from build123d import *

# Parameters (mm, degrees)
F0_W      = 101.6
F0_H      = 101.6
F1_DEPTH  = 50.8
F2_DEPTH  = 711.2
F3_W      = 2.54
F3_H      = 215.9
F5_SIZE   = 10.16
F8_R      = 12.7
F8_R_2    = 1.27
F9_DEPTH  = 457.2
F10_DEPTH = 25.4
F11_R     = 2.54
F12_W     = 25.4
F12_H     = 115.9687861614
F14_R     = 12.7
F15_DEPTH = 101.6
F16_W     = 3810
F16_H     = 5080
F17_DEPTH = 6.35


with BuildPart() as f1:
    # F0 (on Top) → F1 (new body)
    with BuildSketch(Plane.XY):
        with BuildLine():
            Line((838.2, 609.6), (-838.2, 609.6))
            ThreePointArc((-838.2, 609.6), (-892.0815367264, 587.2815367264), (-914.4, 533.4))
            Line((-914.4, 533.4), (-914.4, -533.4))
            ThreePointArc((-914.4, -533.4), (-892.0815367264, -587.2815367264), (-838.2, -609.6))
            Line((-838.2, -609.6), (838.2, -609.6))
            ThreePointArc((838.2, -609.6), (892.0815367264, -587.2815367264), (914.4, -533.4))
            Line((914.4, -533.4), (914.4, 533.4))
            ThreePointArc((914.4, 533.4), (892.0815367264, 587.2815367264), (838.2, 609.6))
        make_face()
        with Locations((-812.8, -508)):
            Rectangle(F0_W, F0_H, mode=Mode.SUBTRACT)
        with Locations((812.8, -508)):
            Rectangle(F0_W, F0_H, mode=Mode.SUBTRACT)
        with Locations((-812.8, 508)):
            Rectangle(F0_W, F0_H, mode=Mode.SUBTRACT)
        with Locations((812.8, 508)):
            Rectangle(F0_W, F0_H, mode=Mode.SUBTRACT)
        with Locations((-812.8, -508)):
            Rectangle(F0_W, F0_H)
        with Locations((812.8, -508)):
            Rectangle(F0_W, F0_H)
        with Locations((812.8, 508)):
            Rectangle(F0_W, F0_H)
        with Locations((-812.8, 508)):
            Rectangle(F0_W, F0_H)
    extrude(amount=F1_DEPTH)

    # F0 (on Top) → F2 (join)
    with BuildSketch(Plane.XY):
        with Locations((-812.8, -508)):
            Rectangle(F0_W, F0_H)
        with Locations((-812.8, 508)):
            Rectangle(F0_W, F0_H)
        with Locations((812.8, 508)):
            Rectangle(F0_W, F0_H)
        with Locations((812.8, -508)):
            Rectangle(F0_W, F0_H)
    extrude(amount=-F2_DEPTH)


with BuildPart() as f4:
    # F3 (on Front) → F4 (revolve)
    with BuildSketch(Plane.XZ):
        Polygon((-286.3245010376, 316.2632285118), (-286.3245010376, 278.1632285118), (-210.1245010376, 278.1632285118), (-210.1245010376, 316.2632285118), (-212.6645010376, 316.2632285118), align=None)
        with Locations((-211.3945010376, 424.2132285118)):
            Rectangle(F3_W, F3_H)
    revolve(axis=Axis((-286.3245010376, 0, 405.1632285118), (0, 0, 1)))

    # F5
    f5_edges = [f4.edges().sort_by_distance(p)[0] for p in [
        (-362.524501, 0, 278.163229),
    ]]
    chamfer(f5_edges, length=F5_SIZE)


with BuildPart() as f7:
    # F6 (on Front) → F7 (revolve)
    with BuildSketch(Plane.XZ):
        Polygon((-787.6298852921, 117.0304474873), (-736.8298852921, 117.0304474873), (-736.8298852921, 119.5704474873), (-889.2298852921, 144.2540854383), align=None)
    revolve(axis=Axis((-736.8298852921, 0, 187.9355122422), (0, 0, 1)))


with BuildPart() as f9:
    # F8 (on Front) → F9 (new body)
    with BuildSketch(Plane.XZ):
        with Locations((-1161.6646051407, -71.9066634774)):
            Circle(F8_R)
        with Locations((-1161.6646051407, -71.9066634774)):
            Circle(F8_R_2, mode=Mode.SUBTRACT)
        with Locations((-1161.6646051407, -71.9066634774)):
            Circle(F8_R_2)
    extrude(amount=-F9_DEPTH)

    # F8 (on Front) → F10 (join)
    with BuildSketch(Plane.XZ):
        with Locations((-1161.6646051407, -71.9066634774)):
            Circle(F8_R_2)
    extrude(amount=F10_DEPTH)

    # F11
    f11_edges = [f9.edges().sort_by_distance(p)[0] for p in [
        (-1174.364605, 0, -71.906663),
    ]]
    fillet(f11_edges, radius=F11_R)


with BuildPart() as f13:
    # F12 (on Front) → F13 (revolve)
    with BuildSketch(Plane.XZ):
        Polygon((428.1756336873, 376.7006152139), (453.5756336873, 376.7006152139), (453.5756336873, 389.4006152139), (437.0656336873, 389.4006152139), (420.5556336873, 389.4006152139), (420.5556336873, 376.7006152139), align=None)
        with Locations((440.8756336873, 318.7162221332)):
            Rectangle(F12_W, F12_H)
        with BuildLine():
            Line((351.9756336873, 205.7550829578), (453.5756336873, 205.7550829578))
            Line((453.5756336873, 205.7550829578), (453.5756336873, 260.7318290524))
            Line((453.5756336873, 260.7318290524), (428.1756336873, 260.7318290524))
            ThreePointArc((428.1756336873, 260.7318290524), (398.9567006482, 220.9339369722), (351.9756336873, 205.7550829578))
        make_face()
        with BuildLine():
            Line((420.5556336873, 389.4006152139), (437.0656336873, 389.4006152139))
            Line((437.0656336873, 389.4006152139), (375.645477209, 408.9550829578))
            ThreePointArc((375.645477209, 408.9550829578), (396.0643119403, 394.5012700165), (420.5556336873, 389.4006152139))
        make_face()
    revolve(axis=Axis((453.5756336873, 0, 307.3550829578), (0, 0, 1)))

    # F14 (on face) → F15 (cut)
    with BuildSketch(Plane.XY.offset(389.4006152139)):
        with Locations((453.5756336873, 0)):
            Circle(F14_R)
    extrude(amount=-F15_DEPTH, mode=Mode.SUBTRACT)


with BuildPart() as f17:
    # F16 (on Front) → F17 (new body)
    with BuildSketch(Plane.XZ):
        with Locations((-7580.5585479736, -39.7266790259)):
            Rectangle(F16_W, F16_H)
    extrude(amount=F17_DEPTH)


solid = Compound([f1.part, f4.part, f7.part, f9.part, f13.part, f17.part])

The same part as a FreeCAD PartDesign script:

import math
import FreeCAD as App
import Part
import Sketcher

V = App.Vector
Q = App.Units.Quantity


def edges_at(feature, points):
    """Names of the edges that pass closest to the given points."""
    edges = feature.Shape.Edges
    near = lambda p: min(range(len(edges)), key=lambda i: edges[i].distToShape(Part.Vertex(*p))[0])
    return sorted({f"Edge{near(p) + 1}" for p in points})


def add_polygon(sketch, points):
    """Adds a closed chain of lines whose ends are joined by coincident constraints."""
    first, n = sketch.GeometryCount, len(points)
    for a, b in zip(points, points[1:] + points[:1]):
        sketch.addGeometry(Part.LineSegment(App.Vector(*a, 0), App.Vector(*b, 0)), False)
    for i in range(n):
        sketch.addConstraint(Sketcher.Constraint("Coincident", first + i, 2, first + (i + 1) % n, 1))

doc = App.newDocument("Part")
body = doc.addObject("PartDesign::Body", "Body")

# Sketch on XY plane
sketch1 = body.newObject("Sketcher::SketchObject", "Sketch")
sketch1.AttachmentSupport = (doc.getObject("XY_Plane"), [""])
sketch1.MapMode = "FlatFace"
sketch1.addGeometry(Part.LineSegment(V(838, 610, 0), V(-838, 610, 0)), False)
sketch1.addGeometry(Part.ArcOfCircle(Part.Circle(V(-838, 533, 0), V(0, 0, 1), 76), math.radians(90), math.radians(180)), False)
sketch1.addGeometry(Part.LineSegment(V(-914, 533, 0), V(-914, -533, 0)), False)
sketch1.addGeometry(Part.ArcOfCircle(Part.Circle(V(-838, -533, 0), V(0, 0, 1), 76), math.radians(180), math.radians(270)), False)
sketch1.addGeometry(Part.LineSegment(V(-838, -610, 0), V(838, -610, 0)), False)
sketch1.addGeometry(Part.ArcOfCircle(Part.Circle(V(838, -533, 0), V(0, 0, 1), 76), math.radians(-90), math.radians(0)), False)
sketch1.addGeometry(Part.LineSegment(V(914, -533, 0), V(914, 533, 0)), False)
sketch1.addGeometry(Part.ArcOfCircle(Part.Circle(V(838, 533, 0), V(0, 0, 1), 76), math.radians(0), math.radians(90)), False)
sketch1.addConstraint(Sketcher.Constraint("Tangent", 0, 2, 1, 1))
sketch1.addConstraint(Sketcher.Constraint("Tangent", 1, 2, 2, 1))
sketch1.addConstraint(Sketcher.Constraint("Tangent", 2, 2, 3, 1))
sketch1.addConstraint(Sketcher.Constraint("Tangent", 3, 2, 4, 1))
sketch1.addConstraint(Sketcher.Constraint("Tangent", 4, 2, 5, 1))
sketch1.addConstraint(Sketcher.Constraint("Tangent", 5, 2, 6, 1))
sketch1.addConstraint(Sketcher.Constraint("Tangent", 6, 2, 7, 1))
sketch1.addConstraint(Sketcher.Constraint("Tangent", 7, 2, 0, 1))
sketch1.addConstraint(Sketcher.Constraint("Horizontal", 0))
sketch1.addConstraint(Sketcher.Constraint("Vertical", 2))
sketch1.addConstraint(Sketcher.Constraint("Horizontal", 4))
sketch1.addConstraint(Sketcher.Constraint("Vertical", 6))
sketch1.addConstraint(Sketcher.Constraint("Equal", 1, 3))
sketch1.addConstraint(Sketcher.Constraint("Equal", 3, 5))
sketch1.addConstraint(Sketcher.Constraint("Equal", 5, 7))
sketch1.addConstraint(Sketcher.Constraint("Symmetric", 1, 3, 5, 3, -1, 1))
sketch1.addConstraint(Sketcher.Constraint("Radius", 1, Q("3 in")))
sketch1.addConstraint(Sketcher.Constraint("DistanceX", 0, 2, 0, 1, Q("66 in")))
sketch1.addConstraint(Sketcher.Constraint("DistanceY", 2, 2, 2, 1, Q("42 in")))
pad1 = body.newObject("PartDesign::Pad", "Pad")
pad1.Profile = sketch1
pad1.Length = Q("2 in")

# Sketch on XY plane
sketch2 = body.newObject("Sketcher::SketchObject", "Sketch001")
sketch2.AttachmentSupport = (doc.getObject("XY_Plane"), [""])
sketch2.MapMode = "FlatFace"
add_polygon(sketch2, [(-864, -457), (-864, -559), (-762, -559), (-762, -457)])  # lines 0-3
add_polygon(sketch2, [(-864, 559), (-864, 457), (-762, 457), (-762, 559)])  # lines 4-7
add_polygon(sketch2, [(762, 559), (762, 457), (864, 457), (864, 559)])  # lines 8-11
add_polygon(sketch2, [(762, -457), (762, -559), (864, -559), (864, -457)])  # lines 12-15
sketch2.addConstraint(Sketcher.Constraint("Vertical", 0))
sketch2.addConstraint(Sketcher.Constraint("Horizontal", 1))
sketch2.addConstraint(Sketcher.Constraint("Vertical", 2))
sketch2.addConstraint(Sketcher.Constraint("Horizontal", 3))
sketch2.addConstraint(Sketcher.Constraint("Vertical", 4))
sketch2.addConstraint(Sketcher.Constraint("Horizontal", 5))
sketch2.addConstraint(Sketcher.Constraint("Vertical", 6))
sketch2.addConstraint(Sketcher.Constraint("Horizontal", 7))
sketch2.addConstraint(Sketcher.Constraint("Vertical", 8))
sketch2.addConstraint(Sketcher.Constraint("Horizontal", 9))
sketch2.addConstraint(Sketcher.Constraint("Vertical", 10))
sketch2.addConstraint(Sketcher.Constraint("Horizontal", 11))
sketch2.addConstraint(Sketcher.Constraint("Vertical", 12))
sketch2.addConstraint(Sketcher.Constraint("Horizontal", 13))
sketch2.addConstraint(Sketcher.Constraint("Vertical", 14))
sketch2.addConstraint(Sketcher.Constraint("Horizontal", 15))
sketch2.addConstraint(Sketcher.Constraint("Symmetric", 2, 2, 8, 2, -1, 1))
sketch2.addConstraint(Sketcher.Constraint("Symmetric", 0, 2, 10, 2, -1, 1))
sketch2.addConstraint(Sketcher.Constraint("Symmetric", 6, 2, 12, 2, -1, 1))
sketch2.addConstraint(Sketcher.Constraint("Symmetric", 4, 2, 14, 2, -1, 1))
sketch2.addConstraint(Sketcher.Constraint("Symmetric", 5, 2, 8, 2, -2))
sketch2.addConstraint(Sketcher.Constraint("Symmetric", 7, 2, 10, 2, -2))
sketch2.addConstraint(Sketcher.Constraint("Equal", 15, 0))
sketch2.addConstraint(Sketcher.Constraint("DistanceX", 1, 1, 1, 2, Q("4 in")))
sketch2.addConstraint(Sketcher.Constraint("DistanceX", 0, 2, -1, 1, Q("34 in")))
sketch2.addConstraint(Sketcher.Constraint("DistanceY", 0, 2, -1, 1, Q("22 in")))
pad2 = body.newObject("PartDesign::Pad", "Pad001")
pad2.Profile = sketch2
pad2.Length = Q("28 in")
pad2.Reversed = True
body2 = doc.addObject("PartDesign::Body", "Body001")

# Sketch on XZ plane
sketch3 = body2.newObject("Sketcher::SketchObject", "Sketch002")
sketch3.AttachmentSupport = (doc.getObject("XZ_Plane001"), [""])
sketch3.MapMode = "FlatFace"
add_polygon(sketch3, [(-286.3, 316.3), (-286.3, 278.2), (-210.1, 278.2), (-210.1, 532.2), (-212.7, 532.2), (-212.7, 316.3)])  # lines 0-5
sketch3.addGeometry(Part.LineSegment(V(-286.3, 278.2, 0), V(-286.3, 532.2, 0)), True)  # axis
sketch3.addConstraint(Sketcher.Constraint("Vertical", 0))
sketch3.addConstraint(Sketcher.Constraint("Horizontal", 1))
sketch3.addConstraint(Sketcher.Constraint("Vertical", 2))
sketch3.addConstraint(Sketcher.Constraint("Horizontal", 3))
sketch3.addConstraint(Sketcher.Constraint("Vertical", 4))
sketch3.addConstraint(Sketcher.Constraint("Horizontal", 5))
sketch3.addConstraint(Sketcher.Constraint("Vertical", 6))
sketch3.addConstraint(Sketcher.Constraint("Coincident", 6, 1, 0, 2))
sketch3.addConstraint(Sketcher.Constraint("Horizontal", 3, 2, 6, 2))
sketch3.addConstraint(Sketcher.Constraint("DistanceX", 1, 1, 1, 2, Q("3 in")))
sketch3.addConstraint(Sketcher.Constraint("DistanceY", 2, 1, 2, 2, Q("10 in")))
sketch3.addConstraint(Sketcher.Constraint("DistanceX", 3, 2, 3, 1, Q("0.1 in")))
sketch3.addConstraint(Sketcher.Constraint("DistanceY", 0, 2, 0, 1, Q("1.5 in")))
sketch3.addConstraint(Sketcher.Constraint("DistanceX", 0, 2, -1, 1, Q("286.324501 mm")))
sketch3.addConstraint(Sketcher.Constraint("DistanceY", -1, 1, 0, 2, Q("278.163229 mm")))
revolution = body2.newObject("PartDesign::Revolution", "Revolution")
revolution.Profile = sketch3
revolution.ReferenceAxis = (sketch3, ["Axis0"])
revolution.Angle = 360
doc.recompute()

chamfer = body2.newObject("PartDesign::Chamfer", "Chamfer")
chamfer.Base = (revolution, edges_at(revolution, [(-362.525, 0, 278.163)]))
chamfer.Size = Q("0.4 in")
body3 = doc.addObject("PartDesign::Body", "Body002")

# Sketch on XZ plane
sketch4 = body3.newObject("Sketcher::SketchObject", "Sketch003")
sketch4.AttachmentSupport = (doc.getObject("XZ_Plane002"), [""])
sketch4.MapMode = "FlatFace"
add_polygon(sketch4, [(-787.6, 117), (-736.8, 117), (-736.8, 119.6), (-889.2, 144.3)])  # lines 0-3
sketch4.addGeometry(Part.LineSegment(V(-736.8, 117, 0), V(-736.8, 144.3, 0)), True)  # axis
sketch4.addConstraint(Sketcher.Constraint("Horizontal", 0))
sketch4.addConstraint(Sketcher.Constraint("Vertical", 1))
sketch4.addConstraint(Sketcher.Constraint("Vertical", 4))
sketch4.addConstraint(Sketcher.Constraint("Coincident", 4, 1, 0, 2))
sketch4.addConstraint(Sketcher.Constraint("Horizontal", 2, 2, 4, 2))
sketch4.addConstraint(Sketcher.Constraint("DistanceX", 0, 1, 0, 2, Q("2 in")))
sketch4.addConstraint(Sketcher.Constraint("DistanceY", 1, 1, 1, 2, Q("0.1 in")))
sketch4.addConstraint(Sketcher.Constraint("Angle", 3, Q("-15 deg")))
sketch4.addConstraint(Sketcher.Constraint("DistanceX", 2, 2, 1, 2, Q("6 in")))
sketch4.addConstraint(Sketcher.Constraint("DistanceX", 0, 2, -1, 1, Q("736.829885 mm")))
sketch4.addConstraint(Sketcher.Constraint("DistanceY", -1, 1, 0, 2, Q("117.030447 mm")))
revolution2 = body3.newObject("PartDesign::Revolution", "Revolution001")
revolution2.Profile = sketch4
revolution2.ReferenceAxis = (sketch4, ["Axis0"])
revolution2.Angle = 360
body4 = doc.addObject("PartDesign::Body", "Body003")

# Sketch on XZ plane
sketch5 = body4.newObject("Sketcher::SketchObject", "Sketch004")
sketch5.AttachmentSupport = (doc.getObject("XZ_Plane003"), [""])
sketch5.MapMode = "FlatFace"
sketch5.addGeometry(Part.Circle(V(-1162, -72, 0), V(0, 0, 1), 13), False)
sketch5.addConstraint(Sketcher.Constraint("Diameter", 0, Q("1 in")))
sketch5.addConstraint(Sketcher.Constraint("DistanceX", 0, 3, -1, 1, Q("1161.664605 mm")))
sketch5.addConstraint(Sketcher.Constraint("DistanceY", 0, 3, -1, 1, Q("71.906663 mm")))
pad3 = body4.newObject("PartDesign::Pad", "Pad002")
pad3.Profile = sketch5
pad3.Length = Q("18 in")
pad3.Reversed = True

# Sketch on XZ plane
sketch6 = body4.newObject("Sketcher::SketchObject", "Sketch005")
sketch6.AttachmentSupport = (doc.getObject("XZ_Plane003"), [""])
sketch6.MapMode = "FlatFace"
sketch6.addGeometry(Part.Circle(V(-1161.7, -71.9, 0), V(0, 0, 1), 1.3), False)
sketch6.addConstraint(Sketcher.Constraint("Diameter", 0, Q("0.1 in")))
sketch6.addConstraint(Sketcher.Constraint("DistanceX", 0, 3, -1, 1, Q("1161.664605 mm")))
sketch6.addConstraint(Sketcher.Constraint("DistanceY", 0, 3, -1, 1, Q("71.906663 mm")))
pad4 = body4.newObject("PartDesign::Pad", "Pad003")
pad4.Profile = sketch6
pad4.Length = Q("1 in")
doc.recompute()

fillet = body4.newObject("PartDesign::Fillet", "Fillet")
fillet.Base = (pad4, edges_at(pad4, [(-1174.365, 0, -71.907)]))
fillet.Radius = Q("0.1 in")
body5 = doc.addObject("PartDesign::Body", "Body004")

# Sketch on XZ plane
sketch7 = body5.newObject("Sketcher::SketchObject", "Sketch006")
sketch7.AttachmentSupport = (doc.getObject("XZ_Plane004"), [""])
sketch7.MapMode = "FlatFace"
sketch7.addGeometry(Part.LineSegment(V(454, 389, 0), V(437, 389, 0)), False)
sketch7.addGeometry(Part.LineSegment(V(437, 389, 0), V(376, 409, 0)), False)
sketch7.addGeometry(Part.ArcOfCircle(Part.Circle(V(421, 451, 0), V(0, 0, 1), 61), math.radians(-137), math.radians(-90)), False)
sketch7.addGeometry(Part.LineSegment(V(421, 389, 0), V(421, 377, 0)), False)
sketch7.addGeometry(Part.LineSegment(V(421, 377, 0), V(428, 377, 0)), False)
sketch7.addGeometry(Part.LineSegment(V(428, 377, 0), V(428, 261, 0)), False)
sketch7.addGeometry(Part.ArcOfCircle(Part.Circle(V(352, 286, 0), V(0, 0, 1), 80), math.radians(-90), math.radians(-18)), False)
sketch7.addGeometry(Part.LineSegment(V(352, 206, 0), V(454, 206, 0)), False)
sketch7.addGeometry(Part.LineSegment(V(454, 206, 0), V(454, 389, 0)), False)
sketch7.addGeometry(Part.LineSegment(V(454, 206, 0), V(454, 451, 0)), True)  # axis
sketch7.addConstraint(Sketcher.Constraint("Coincident", 0, 2, 1, 1))
sketch7.addConstraint(Sketcher.Constraint("Coincident", 1, 2, 2, 1))
sketch7.addConstraint(Sketcher.Constraint("Coincident", 2, 2, 3, 1))
sketch7.addConstraint(Sketcher.Constraint("Coincident", 3, 2, 4, 1))
sketch7.addConstraint(Sketcher.Constraint("Coincident", 4, 2, 5, 1))
sketch7.addConstraint(Sketcher.Constraint("Coincident", 5, 2, 6, 2))
sketch7.addConstraint(Sketcher.Constraint("Tangent", 6, 1, 7, 1))
sketch7.addConstraint(Sketcher.Constraint("Coincident", 7, 2, 8, 1))
sketch7.addConstraint(Sketcher.Constraint("Coincident", 8, 2, 0, 1))
sketch7.addConstraint(Sketcher.Constraint("Horizontal", 0))
sketch7.addConstraint(Sketcher.Constraint("Vertical", 3))
sketch7.addConstraint(Sketcher.Constraint("Horizontal", 4))
sketch7.addConstraint(Sketcher.Constraint("Vertical", 5))
sketch7.addConstraint(Sketcher.Constraint("Horizontal", 7))
sketch7.addConstraint(Sketcher.Constraint("Vertical", 8))
sketch7.addConstraint(Sketcher.Constraint("Vertical", 9))
sketch7.addConstraint(Sketcher.Constraint("Coincident", 9, 1, 7, 2))
sketch7.addConstraint(Sketcher.Constraint("Horizontal", 0, 2, 2, 2))
sketch7.addConstraint(Sketcher.Constraint("Horizontal", 2, 3, 9, 2))
sketch7.addConstraint(Sketcher.Constraint("DistanceX", 7, 1, 7, 2, Q("4 in")))
sketch7.addConstraint(Sketcher.Constraint("DistanceX", 4, 1, 4, 2, Q("0.3 in")))
sketch7.addConstraint(Sketcher.Constraint("DistanceY", 3, 2, 3, 1, Q("0.5 in")))
sketch7.addConstraint(Sketcher.Constraint("DistanceX", 6, 3, 5, 2, Q("3 in")))
sketch7.addConstraint(Sketcher.Constraint("DistanceX", 0, 2, 0, 1, Q("0.65 in")))
sketch7.addConstraint(Sketcher.Constraint("DistanceX", 6, 3, 2, 3, Q("2.7 in")))
sketch7.addConstraint(Sketcher.Constraint("Radius", 6, Q("80.296518 mm")))
sketch7.addConstraint(Sketcher.Constraint("Radius", 2, Q("61.349135 mm")))
sketch7.addConstraint(Sketcher.Constraint("DistanceY", -1, 1, 6, 3, Q("286.051601 mm")))
sketch7.addConstraint(Sketcher.Constraint("DistanceY", 5, 2, 5, 1, Q("115.968786 mm")))
sketch7.addConstraint(Sketcher.Constraint("DistanceY", 6, 3, 1, 2, Q("122.903482 mm")))
sketch7.addConstraint(Sketcher.Constraint("DistanceX", -1, 1, 2, 3, Q("420.555634 mm")))
revolution3 = body5.newObject("PartDesign::Revolution", "Revolution002")
revolution3.Profile = sketch7
revolution3.ReferenceAxis = (sketch7, ["Axis0"])
revolution3.Angle = 360

# Sketch on XY plane
sketch8 = body5.newObject("Sketcher::SketchObject", "Sketch007")
sketch8.AttachmentSupport = (doc.getObject("XY_Plane004"), [""])
sketch8.MapMode = "FlatFace"
sketch8.AttachmentOffset = App.Placement(V(0, 0, 389.400615), App.Rotation())
sketch8.addGeometry(Part.Circle(V(454, 0, 0), V(0, 0, 1), 13), False)
sketch8.addConstraint(Sketcher.Constraint("PointOnObject", 0, 3, -1))
sketch8.addConstraint(Sketcher.Constraint("Diameter", 0, Q("1 in")))
sketch8.addConstraint(Sketcher.Constraint("DistanceX", -1, 1, 0, 3, Q("453.575634 mm")))
pocket1 = body5.newObject("PartDesign::Pocket", "Pocket")
pocket1.Profile = sketch8
pocket1.Length = Q("4 in")
body6 = doc.addObject("PartDesign::Body", "Body005")

# Sketch on XZ plane
sketch9 = body6.newObject("Sketcher::SketchObject", "Sketch008")
sketch9.AttachmentSupport = (doc.getObject("XZ_Plane005"), [""])
sketch9.MapMode = "FlatFace"
add_polygon(sketch9, [(-9486, 2500), (-9486, -2580), (-5676, -2580), (-5676, 2500)])  # lines 0-3
sketch9.addConstraint(Sketcher.Constraint("Vertical", 0))
sketch9.addConstraint(Sketcher.Constraint("Horizontal", 1))
sketch9.addConstraint(Sketcher.Constraint("Vertical", 2))
sketch9.addConstraint(Sketcher.Constraint("Horizontal", 3))
sketch9.addConstraint(Sketcher.Constraint("DistanceX", 1, 1, 1, 2, Q("150 in")))
sketch9.addConstraint(Sketcher.Constraint("DistanceY", 0, 2, 0, 1, Q("200 in")))
sketch9.addConstraint(Sketcher.Constraint("DistanceY", 0, 2, -1, 1, Q("2579.726679 mm")))
sketch9.addConstraint(Sketcher.Constraint("DistanceX", 0, 2, -1, 1, Q("9485.558548 mm")))
pad5 = body6.newObject("PartDesign::Pad", "Pad004")
pad5.Profile = sketch9
pad5.Length = Q("0.25 in")

doc.recompute()
